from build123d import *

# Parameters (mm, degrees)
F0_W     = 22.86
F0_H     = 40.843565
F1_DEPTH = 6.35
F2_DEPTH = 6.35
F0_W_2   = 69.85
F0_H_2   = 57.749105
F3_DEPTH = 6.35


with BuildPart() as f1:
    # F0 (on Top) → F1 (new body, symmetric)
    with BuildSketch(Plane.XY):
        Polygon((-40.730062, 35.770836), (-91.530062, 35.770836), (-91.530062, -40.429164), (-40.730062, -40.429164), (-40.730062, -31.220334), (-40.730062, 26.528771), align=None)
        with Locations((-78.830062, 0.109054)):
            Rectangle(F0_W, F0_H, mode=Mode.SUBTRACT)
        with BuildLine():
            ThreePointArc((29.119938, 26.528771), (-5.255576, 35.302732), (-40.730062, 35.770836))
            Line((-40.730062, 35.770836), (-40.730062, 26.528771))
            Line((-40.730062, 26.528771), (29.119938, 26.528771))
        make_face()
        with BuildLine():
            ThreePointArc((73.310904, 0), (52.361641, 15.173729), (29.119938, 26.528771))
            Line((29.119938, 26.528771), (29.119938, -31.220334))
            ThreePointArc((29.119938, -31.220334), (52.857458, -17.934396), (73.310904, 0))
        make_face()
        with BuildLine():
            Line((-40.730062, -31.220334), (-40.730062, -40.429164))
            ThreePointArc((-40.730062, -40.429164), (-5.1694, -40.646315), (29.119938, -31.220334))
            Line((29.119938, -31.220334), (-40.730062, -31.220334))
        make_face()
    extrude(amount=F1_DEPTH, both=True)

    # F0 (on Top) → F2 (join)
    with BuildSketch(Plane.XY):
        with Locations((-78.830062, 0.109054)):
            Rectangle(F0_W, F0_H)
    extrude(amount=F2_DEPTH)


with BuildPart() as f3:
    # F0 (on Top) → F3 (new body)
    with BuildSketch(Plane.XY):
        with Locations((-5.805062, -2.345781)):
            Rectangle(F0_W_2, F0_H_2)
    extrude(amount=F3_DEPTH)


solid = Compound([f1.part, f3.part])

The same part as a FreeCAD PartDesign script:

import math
import FreeCAD as App
import Part
import Sketcher
from FreeCAD import Vector
Q = App.Units.Quantity


def add_polygon(sketch, points):
    """Adds a closed chain of lines whose ends are joined by coincident constraints."""
    first, n = sketch.GeometryCount, len(points)
    for a, b in zip(points, points[1:] + points[:1]):
        sketch.addGeometry(Part.LineSegment(App.Vector(*a, 0), App.Vector(*b, 0)), False)
    for i in range(n):
        sketch.addConstraint(Sketcher.Constraint("Coincident", first + i, 2, first + (i + 1) % n, 1))

doc = App.newDocument("Part")
params = doc.addObject("Spreadsheet::Sheet", "Params")
for row, (alias, value) in enumerate([
    ("sketch1_width", "2 in"),
    ("sketch1_height", "3 in"),
    ("sketch1_width2", "0.9 in"),
    ("sketch1_width3", "2.75 in"),
    ("pad1_length", "0.5 in"),
    ("sketch2_width", "0.9 in"),
    ("pad2_length", "0.25 in"),
    ("sketch3_width", "2.75 in"),
    ("pad3_length", "0.25 in"),
], start=1):
    params.set(f"A{row}", alias)
    params.set(f"B{row}", "=" + value)
    params.setAlias(f"B{row}", alias)

body = doc.addObject("PartDesign::Body", "Body")
body.AllowCompound = True

# Sketch on XY plane
sketch1 = doc.addObject("Sketcher::SketchObject", "Sketch")
body.addObject(sketch1)
sketch1.AttachmentSupport = (doc.XY_Plane, [""])
sketch1.MapMode = "FlatFace"
sketch1.addGeometry(Part.LineSegment(Vector(-40.730062, 35.770836, 0), Vector(-91.530062, 35.770836, 0)), False)  # 0
sketch1.addGeometry(Part.LineSegment(Vector(-91.530062, 35.770836, 0), Vector(-91.530062, -40.429164, 0)), False)  # 1
sketch1.addGeometry(Part.LineSegment(Vector(-91.530062, -40.429164, 0), Vector(-40.730062, -40.429164, 0)), False)  # 2
sketch1.addGeometry(Part.ArcOfCircle(Part.Circle(Vector(-22.163265, 88.254038, 0), Vector(0, 0, 1), 130.015739), math.radians(-98.210148), math.radians(-66.769046)), False)  # 3
sketch1.addGeometry(Part.LineSegment(Vector(29.119938, -31.220334, 0), Vector(-40.730062, -31.220334, 0)), False)  # 4
sketch1.addGeometry(Part.LineSegment(Vector(-40.730062, -31.220334, 0), Vector(-40.730062, 26.528771, 0)), False)  # 5
sketch1.addGeometry(Part.LineSegment(Vector(-40.730062, 26.528771, 0), Vector(29.119938, 26.528771, 0)), False)  # 6
sketch1.addGeometry(Part.ArcOfCircle(Part.Circle(Vector(-24.961133, -113.628614, 0), Vector(0, 0, 1), 150.22934), math.radians(68.900414), math.radians(96.025191)), False)  # 7
add_polygon(sketch1, [(-67.400062, -20.312728), (-90.260062, -20.312728), (-90.260062, 20.530836), (-67.400062, 20.530836)])  # lines 8-11
sketch1.addGeometry(Part.ArcOfCircle(Part.Circle(Vector(-24.961136, -113.628626, 0), Vector(0, 0, 1), 150.229353), math.radians(49.145018), math.radians(68.900414)), False)  # 12
sketch1.addGeometry(Part.LineSegment(Vector(29.119938, 26.528771, 0), Vector(29.119938, -31.220334, 0)), False)  # 13
sketch1.addGeometry(Part.ArcOfCircle(Part.Circle(Vector(-22.16326, 88.254026, 0), Vector(0, 0, 1), 130.015726), math.radians(-66.769045), math.radians(-42.749552)), False)  # 14
sketch1.addConstraint([
    Sketcher.Constraint("Coincident", 0, 2, 1, 1),
    Sketcher.Constraint("Coincident", 1, 2, 2, 1),
    Sketcher.Constraint("Coincident", 2, 2, 3, 1),
    Sketcher.Constraint("Coincident", 3, 2, 4, 1),
    Sketcher.Constraint("Coincident", 4, 2, 5, 1),
    Sketcher.Constraint("Coincident", 5, 2, 6, 1),
    Sketcher.Constraint("Coincident", 6, 2, 7, 1),
    Sketcher.Constraint("Coincident", 7, 2, 0, 1),
    Sketcher.Constraint("Coincident", 12, 2, 13, 1),
    Sketcher.Constraint("Coincident", 13, 2, 14, 1),
    Sketcher.Constraint("Coincident", 14, 2, 12, 1),
    Sketcher.Constraint("Horizontal", 0),
    Sketcher.Constraint("Vertical", 1),
    Sketcher.Constraint("Horizontal", 2),
    Sketcher.Constraint("Horizontal", 4),
    Sketcher.Constraint("Vertical", 5),
    Sketcher.Constraint("Horizontal", 6),
    Sketcher.Constraint("Horizontal", 8),
    Sketcher.Constraint("Vertical", 9),
    Sketcher.Constraint("Horizontal", 10),
    Sketcher.Constraint("Vertical", 11),
    Sketcher.Constraint("Vertical", 13),
    Sketcher.Constraint("Coincident", 12, 2, 6, 2),
    Sketcher.Constraint("Coincident", 13, 2, 3, 2),
    Sketcher.Constraint("PointOnObject", 14, 2, -1),
    Sketcher.Constraint("Vertical", 2, 2, 4, 2),
    Sketcher.Constraint("Vertical", 5, 2, 7, 2),
    Sketcher.Constraint("DistanceX", 0, 2, 0, 1, Q("2 in")),
    Sketcher.Constraint("DistanceY", 1, 2, 1, 1, Q("3 in")),
    Sketcher.Constraint("DistanceX", 8, 2, 8, 1, Q("0.9 in")),
    Sketcher.Constraint("DistanceX", 4, 2, 4, 1, Q("2.75 in")),
    Sketcher.Constraint("DistanceY", 9, 2, 0, 2, Q("0.6 in")),
    Sketcher.Constraint("DistanceX", 1, 2, 8, 2, Q("0.05 in")),
    Sketcher.Constraint("Radius", 3, 130.015739),
    Sketcher.Constraint("Radius", 7, 150.22934),
    Sketcher.Constraint("Radius", 12, 150.229353),
    Sketcher.Constraint("Radius", 14, 130.015726),
    Sketcher.Constraint("DistanceY", 8, 2, 5, 2, 46.841499),
    Sketcher.Constraint("DistanceY", 5, 1, 5, 2, 57.749105),
    Sketcher.Constraint("DistanceY", 9, 1, 9, 2, 40.843565),
    Sketcher.Constraint("DistanceY", -1, 1, 3, 3, 88.254038),
    Sketcher.Constraint("DistanceX", 14, 3, -1, 1, 22.16326),
    Sketcher.Constraint("DistanceX", 0, 2, -1, 1, 91.530062),
])
sketch1.setExpression("Constraints[31]", "Params.sketch1_width")
sketch1.setExpression("Constraints[32]", "Params.sketch1_height")
sketch1.setExpression("Constraints[33]", "Params.sketch1_width2")
sketch1.setExpression("Constraints[34]", "Params.sketch1_width3")
pad1 = doc.addObject("PartDesign::Pad", "Pad")
body.addObject(pad1)
pad1.Profile = sketch1
pad1.setExpression("Length", "Params.pad1_length")
pad1.Midplane = True

# Sketch on XY plane
sketch2 = doc.addObject("Sketcher::SketchObject", "Sketch001")
body.addObject(sketch2)
sketch2.AttachmentSupport = (doc.XY_Plane, [""])
sketch2.MapMode = "FlatFace"
add_polygon(sketch2, [(-90.260062, 20.530836), (-90.260062, -20.312728), (-67.400062, -20.312728), (-67.400062, 20.530836)])  # lines 0-3
sketch2.addConstraint([
    Sketcher.Constraint("Vertical", 0),
    Sketcher.Constraint("Horizontal", 1),
    Sketcher.Constraint("Vertical", 2),
    Sketcher.Constraint("Horizontal", 3),
    Sketcher.Constraint("DistanceX", 1, 1, 1, 2, Q("0.9 in")),
    Sketcher.Constraint("DistanceY", 0, 2, 0, 1, 40.843565),
    Sketcher.Constraint("DistanceY", 0, 2, -1, 1, 20.312728),
    Sketcher.Constraint("DistanceX", 0, 2, -1, 1, 90.260062),
])
sketch2.setExpression("Constraints[8]", "Params.sketch2_width")
pad2 = doc.addObject("PartDesign::Pad", "Pad001")
body.addObject(pad2)
pad2.Profile = sketch2
pad2.setExpression("Length", "Params.pad2_length")
body2 = doc.addObject("PartDesign::Body", "Body001")

# Sketch on XY plane
sketch3 = doc.addObject("Sketcher::SketchObject", "Sketch002")
body2.addObject(sketch3)
sketch3.AttachmentSupport = (doc.getObject("XY_Plane001"), [""])
sketch3.MapMode = "FlatFace"
add_polygon(sketch3, [(-40.730062, 26.528772), (-40.730062, -31.220333), (29.119938, -31.220333), (29.119938, 26.528772)])  # lines 0-3
sketch3.addConstraint([
    Sketcher.Constraint("Vertical", 0),
    Sketcher.Constraint("Horizontal", 1),
    Sketcher.Constraint("Vertical", 2),
    Sketcher.Constraint("Horizontal", 3),
    Sketcher.Constraint("DistanceX", 1, 1, 1, 2, Q("2.75 in")),
    Sketcher.Constraint("DistanceY", 0, 2, 0, 1, 57.749105),
    Sketcher.Constraint("DistanceX", 0, 2, -1, 1, 40.730062),
    Sketcher.Constraint("DistanceY", -1, 1, 2, 2, 26.528772),
])
sketch3.setExpression("Constraints[8]", "Params.sketch3_width")
pad3 = doc.addObject("PartDesign::Pad", "Pad002")
body2.addObject(pad3)
pad3.Profile = sketch3
pad3.setExpression("Length", "Params.pad3_length")

doc.recompute()
